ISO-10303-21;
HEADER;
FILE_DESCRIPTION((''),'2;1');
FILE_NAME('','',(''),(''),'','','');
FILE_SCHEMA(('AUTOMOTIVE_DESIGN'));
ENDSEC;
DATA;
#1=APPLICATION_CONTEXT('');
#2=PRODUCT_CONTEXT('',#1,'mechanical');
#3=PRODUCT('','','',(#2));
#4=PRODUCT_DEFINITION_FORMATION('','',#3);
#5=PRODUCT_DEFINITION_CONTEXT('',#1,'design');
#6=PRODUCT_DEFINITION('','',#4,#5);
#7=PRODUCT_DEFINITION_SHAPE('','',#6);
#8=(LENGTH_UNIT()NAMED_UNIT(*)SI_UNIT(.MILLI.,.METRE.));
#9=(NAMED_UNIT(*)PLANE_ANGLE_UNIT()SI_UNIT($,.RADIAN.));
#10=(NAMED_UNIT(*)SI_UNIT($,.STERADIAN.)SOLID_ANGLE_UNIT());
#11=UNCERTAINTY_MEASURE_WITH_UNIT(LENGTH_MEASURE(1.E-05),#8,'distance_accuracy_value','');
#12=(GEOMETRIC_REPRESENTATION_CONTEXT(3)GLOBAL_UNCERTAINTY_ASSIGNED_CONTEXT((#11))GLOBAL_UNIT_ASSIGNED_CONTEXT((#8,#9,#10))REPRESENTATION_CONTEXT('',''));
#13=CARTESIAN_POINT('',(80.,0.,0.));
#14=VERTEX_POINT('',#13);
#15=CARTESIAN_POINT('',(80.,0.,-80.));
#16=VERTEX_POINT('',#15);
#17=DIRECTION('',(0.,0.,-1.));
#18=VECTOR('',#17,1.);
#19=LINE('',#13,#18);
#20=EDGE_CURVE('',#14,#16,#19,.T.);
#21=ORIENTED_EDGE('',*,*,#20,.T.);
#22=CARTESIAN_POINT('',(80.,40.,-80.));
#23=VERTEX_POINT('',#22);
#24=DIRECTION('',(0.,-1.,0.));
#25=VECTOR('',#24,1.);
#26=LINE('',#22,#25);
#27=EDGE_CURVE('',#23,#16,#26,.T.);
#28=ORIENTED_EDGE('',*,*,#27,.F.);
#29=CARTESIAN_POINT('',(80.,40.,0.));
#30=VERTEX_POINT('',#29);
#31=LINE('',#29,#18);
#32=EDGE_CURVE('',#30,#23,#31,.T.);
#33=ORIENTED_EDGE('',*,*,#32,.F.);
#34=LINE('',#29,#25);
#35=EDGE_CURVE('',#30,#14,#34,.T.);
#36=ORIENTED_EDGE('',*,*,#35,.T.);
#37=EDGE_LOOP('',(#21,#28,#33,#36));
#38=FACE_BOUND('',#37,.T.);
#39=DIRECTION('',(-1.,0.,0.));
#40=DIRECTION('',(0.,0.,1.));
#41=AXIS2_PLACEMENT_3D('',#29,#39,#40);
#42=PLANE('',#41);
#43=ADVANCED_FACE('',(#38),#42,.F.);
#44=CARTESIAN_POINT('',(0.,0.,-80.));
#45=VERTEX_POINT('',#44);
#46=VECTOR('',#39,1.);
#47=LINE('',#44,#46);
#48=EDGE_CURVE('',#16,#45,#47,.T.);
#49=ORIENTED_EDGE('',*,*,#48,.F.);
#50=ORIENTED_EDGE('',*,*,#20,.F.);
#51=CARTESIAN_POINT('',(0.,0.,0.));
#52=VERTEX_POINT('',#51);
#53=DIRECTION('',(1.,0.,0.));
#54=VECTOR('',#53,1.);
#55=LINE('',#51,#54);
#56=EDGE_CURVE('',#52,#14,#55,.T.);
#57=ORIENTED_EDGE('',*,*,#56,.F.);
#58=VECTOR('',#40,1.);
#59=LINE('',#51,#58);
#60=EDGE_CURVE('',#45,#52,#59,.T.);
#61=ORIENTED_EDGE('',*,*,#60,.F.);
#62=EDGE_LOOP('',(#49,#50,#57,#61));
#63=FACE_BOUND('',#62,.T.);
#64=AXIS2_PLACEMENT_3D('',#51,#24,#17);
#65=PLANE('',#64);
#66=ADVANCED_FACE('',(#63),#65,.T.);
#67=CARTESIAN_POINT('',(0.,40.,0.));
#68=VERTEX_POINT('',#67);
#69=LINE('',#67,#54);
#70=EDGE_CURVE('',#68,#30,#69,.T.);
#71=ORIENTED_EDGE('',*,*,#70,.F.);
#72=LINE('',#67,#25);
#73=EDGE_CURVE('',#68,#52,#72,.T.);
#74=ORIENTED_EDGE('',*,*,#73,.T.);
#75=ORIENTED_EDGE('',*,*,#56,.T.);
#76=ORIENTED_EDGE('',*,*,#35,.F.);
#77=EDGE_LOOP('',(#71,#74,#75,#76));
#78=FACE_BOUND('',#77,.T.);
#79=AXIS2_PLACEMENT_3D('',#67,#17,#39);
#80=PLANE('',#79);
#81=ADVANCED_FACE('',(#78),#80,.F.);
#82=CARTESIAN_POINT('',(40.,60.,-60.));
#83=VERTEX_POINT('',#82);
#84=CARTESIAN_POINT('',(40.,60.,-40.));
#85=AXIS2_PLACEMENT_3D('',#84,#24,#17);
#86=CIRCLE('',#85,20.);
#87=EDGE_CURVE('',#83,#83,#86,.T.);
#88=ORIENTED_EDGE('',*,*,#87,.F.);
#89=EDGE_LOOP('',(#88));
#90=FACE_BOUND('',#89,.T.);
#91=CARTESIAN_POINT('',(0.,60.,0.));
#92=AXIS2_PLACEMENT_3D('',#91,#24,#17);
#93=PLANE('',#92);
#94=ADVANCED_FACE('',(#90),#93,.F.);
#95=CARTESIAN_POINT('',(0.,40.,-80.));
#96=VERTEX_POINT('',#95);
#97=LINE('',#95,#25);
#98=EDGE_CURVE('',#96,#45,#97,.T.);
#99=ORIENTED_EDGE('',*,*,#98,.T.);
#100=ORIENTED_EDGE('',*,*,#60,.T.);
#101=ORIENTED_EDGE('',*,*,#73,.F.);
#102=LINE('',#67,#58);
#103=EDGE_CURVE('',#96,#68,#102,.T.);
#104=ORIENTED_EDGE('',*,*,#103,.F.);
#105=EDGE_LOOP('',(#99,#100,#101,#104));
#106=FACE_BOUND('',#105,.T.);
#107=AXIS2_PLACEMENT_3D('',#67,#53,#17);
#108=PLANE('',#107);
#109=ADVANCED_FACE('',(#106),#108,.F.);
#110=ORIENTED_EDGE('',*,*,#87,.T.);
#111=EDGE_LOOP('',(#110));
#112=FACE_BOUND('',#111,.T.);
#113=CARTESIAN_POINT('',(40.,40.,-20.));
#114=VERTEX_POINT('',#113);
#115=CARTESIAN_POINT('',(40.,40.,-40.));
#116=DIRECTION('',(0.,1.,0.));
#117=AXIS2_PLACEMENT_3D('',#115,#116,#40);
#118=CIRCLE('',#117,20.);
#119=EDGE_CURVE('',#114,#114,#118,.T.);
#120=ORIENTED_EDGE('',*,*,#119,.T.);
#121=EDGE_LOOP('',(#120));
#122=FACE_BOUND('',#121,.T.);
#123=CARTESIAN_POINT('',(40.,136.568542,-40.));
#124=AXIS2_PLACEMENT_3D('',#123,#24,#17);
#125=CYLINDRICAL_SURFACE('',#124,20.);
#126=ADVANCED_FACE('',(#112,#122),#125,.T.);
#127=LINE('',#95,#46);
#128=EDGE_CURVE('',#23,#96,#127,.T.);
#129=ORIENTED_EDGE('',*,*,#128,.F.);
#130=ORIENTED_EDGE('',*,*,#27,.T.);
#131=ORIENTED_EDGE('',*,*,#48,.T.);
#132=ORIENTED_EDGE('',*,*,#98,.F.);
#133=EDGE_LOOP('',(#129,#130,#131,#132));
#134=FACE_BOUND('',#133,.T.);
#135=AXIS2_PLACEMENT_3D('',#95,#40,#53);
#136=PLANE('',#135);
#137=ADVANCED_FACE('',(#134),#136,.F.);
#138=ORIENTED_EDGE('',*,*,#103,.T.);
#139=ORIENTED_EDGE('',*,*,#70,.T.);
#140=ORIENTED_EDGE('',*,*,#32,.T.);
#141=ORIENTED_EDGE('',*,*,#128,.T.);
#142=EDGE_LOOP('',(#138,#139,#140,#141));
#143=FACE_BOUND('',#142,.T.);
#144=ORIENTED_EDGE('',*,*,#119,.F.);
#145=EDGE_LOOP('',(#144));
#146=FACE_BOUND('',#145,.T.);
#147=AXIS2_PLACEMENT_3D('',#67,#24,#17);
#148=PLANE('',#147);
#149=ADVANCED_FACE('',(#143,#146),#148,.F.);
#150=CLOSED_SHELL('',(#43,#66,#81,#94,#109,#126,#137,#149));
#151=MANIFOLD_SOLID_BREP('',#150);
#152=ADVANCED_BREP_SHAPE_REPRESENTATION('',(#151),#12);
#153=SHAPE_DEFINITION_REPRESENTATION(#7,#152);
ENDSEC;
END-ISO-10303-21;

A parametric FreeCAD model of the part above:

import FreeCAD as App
import Part
import Sketcher

V = App.Vector

doc = App.newDocument("Part")
body = doc.addObject("PartDesign::Body", "Body")

# Sketch on XZ plane
sketch1 = body.newObject("Sketcher::SketchObject", "Sketch")
sketch1.AttachmentSupport = (doc.getObject("XZ_Plane"), [""])
sketch1.MapMode = "FlatFace"
sketch1.addGeometry(Part.LineSegment(V(0, -80, 0), V(0, 0, 0)), False)
sketch1.addGeometry(Part.LineSegment(V(0, 0, 0), V(80, 0, 0)), False)
sketch1.addGeometry(Part.LineSegment(V(80, 0, 0), V(80, -80, 0)), False)
sketch1.addGeometry(Part.LineSegment(V(80, -80, 0), V(0, -80, 0)), False)
sketch1.addGeometry(Part.Circle(V(40, -40, 0), V(0, 0, 1), 20), False)
sketch1.addConstraint(Sketcher.Constraint("Coincident", 0, 2, 1, 1))
sketch1.addConstraint(Sketcher.Constraint("Coincident", 1, 2, 2, 1))
sketch1.addConstraint(Sketcher.Constraint("Coincident", 2, 2, 3, 1))
sketch1.addConstraint(Sketcher.Constraint("Coincident", 3, 2, 0, 1))
sketch1.addConstraint(Sketcher.Constraint("Vertical", 0))
sketch1.addConstraint(Sketcher.Constraint("Horizontal", 1))
sketch1.addConstraint(Sketcher.Constraint("Vertical", 2))
sketch1.addConstraint(Sketcher.Constraint("Horizontal", 3))
sketch1.addConstraint(Sketcher.Constraint("Coincident", 0, 2, -1, 1))
sketch1.addConstraint(Sketcher.Constraint("Equal", 3, 0))
sketch1.addConstraint(Sketcher.Constraint("Diameter", 4, 40.0))
sketch1.addConstraint(Sketcher.Constraint("DistanceX", 1, 1, 1, 2, 80.0))
sketch1.addConstraint(Sketcher.Constraint("DistanceX", -1, 1, 4, 3, 40.0))
sketch1.addConstraint(Sketcher.Constraint("DistanceY", 4, 3, -1, 1, 40.0))
pad1 = body.newObject("PartDesign::Pad", "Pad")
pad1.Profile = sketch1
pad1.Length = 40
pad1.Reversed = True

# Sketch on XZ plane
sketch2 = body.newObject("Sketcher::SketchObject", "Sketch001")
sketch2.AttachmentSupport = (doc.getObject("XZ_Plane"), [""])
sketch2.MapMode = "FlatFace"
sketch2.addGeometry(Part.Circle(V(40, -40, 0), V(0, 0, 1), 20), False)
sketch2.addConstraint(Sketcher.Constraint("Diameter", 0, 40.0))
sketch2.addConstraint(Sketcher.Constraint("DistanceX", -1, 1, 0, 3, 40.0))
sketch2.addConstraint(Sketcher.Constraint("DistanceY", 0, 3, -1, 1, 40.0))
pad2 = body.newObject("PartDesign::Pad", "Pad001")
pad2.Profile = sketch2
pad2.Length = 60
pad2.Reversed = True

doc.recompute()
